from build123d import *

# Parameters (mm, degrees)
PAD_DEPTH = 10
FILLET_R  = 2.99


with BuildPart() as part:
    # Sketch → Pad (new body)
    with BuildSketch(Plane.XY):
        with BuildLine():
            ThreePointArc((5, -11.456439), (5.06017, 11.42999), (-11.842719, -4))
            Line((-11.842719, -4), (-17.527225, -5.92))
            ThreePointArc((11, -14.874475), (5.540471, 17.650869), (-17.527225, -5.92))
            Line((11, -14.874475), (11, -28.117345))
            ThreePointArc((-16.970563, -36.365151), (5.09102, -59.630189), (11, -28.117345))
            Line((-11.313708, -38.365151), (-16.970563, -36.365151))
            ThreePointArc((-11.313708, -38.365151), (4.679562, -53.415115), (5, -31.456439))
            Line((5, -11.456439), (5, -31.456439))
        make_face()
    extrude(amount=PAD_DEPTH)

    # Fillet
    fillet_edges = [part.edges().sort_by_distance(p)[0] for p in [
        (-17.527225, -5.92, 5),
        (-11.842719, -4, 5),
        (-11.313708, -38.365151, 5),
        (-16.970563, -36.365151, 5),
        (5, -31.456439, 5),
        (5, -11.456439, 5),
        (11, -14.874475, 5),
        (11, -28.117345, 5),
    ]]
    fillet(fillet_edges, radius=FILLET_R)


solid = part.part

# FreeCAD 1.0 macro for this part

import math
import FreeCAD as App
import Part
import Sketcher

V = App.Vector
Q = App.Units.Quantity


def edges_at(feature, points):
    """Names of the edges that pass closest to the given points."""
    edges = feature.Shape.Edges
    near = lambda p: min(range(len(edges)), key=lambda i: edges[i].distToShape(Part.Vertex(*p))[0])
    return sorted({f"Edge{near(p) + 1}" for p in points})

doc = App.newDocument("Part")
body = doc.addObject("PartDesign::Body", "Body")

# Sketch on XY plane
sketch1 = doc.addObject("Sketcher::SketchObject", "Sketch")
body.addObject(sketch1)
sketch1.AttachmentSupport = (doc.XY_Plane, [""])
sketch1.MapMode = "FlatFace"
sketch1.addGeometry([
    Part.ArcOfCircle(Part.Circle(V(0, 0, 0), V(0, 0, 1), 12), math.radians(-66), math.radians(199)),  # 0
    Part.LineSegment(V(5, -11, 0), V(5, -31, 0)),  # 1
    Part.ArcOfCircle(Part.Circle(V(0, -42, 0), V(0, 0, 1), 12), math.radians(161), math.radians(425)),  # 2
    Part.LineSegment(V(-11, -38, 0), V(-17, -36, 0)),  # 3
    Part.ArcOfCircle(Part.Circle(V(0, -42, 0), V(0, 0, 1), 18), math.radians(161), math.radians(412)),  # 4
    Part.LineSegment(V(11, -28, 0), V(11, -15, 0)),  # 5
    Part.ArcOfCircle(Part.Circle(V(0, 0, 0), V(0, 0, 1), 19), math.radians(-54), math.radians(199)),  # 6
    Part.LineSegment(V(-18, -6, 0), V(-12, -4, 0)),  # 7
], False)
sketch1.addConstraint([
    Sketcher.Constraint("Coincident", 0, 1, 1, 1),
    Sketcher.Constraint("Coincident", 1, 2, 2, 2),
    Sketcher.Constraint("Coincident", 2, 1, 3, 1),
    Sketcher.Constraint("Coincident", 3, 2, 4, 1),
    Sketcher.Constraint("Coincident", 4, 2, 5, 1),
    Sketcher.Constraint("Coincident", 5, 2, 6, 1),
    Sketcher.Constraint("Coincident", 6, 2, 7, 1),
    Sketcher.Constraint("Coincident", 7, 2, 0, 2),
    Sketcher.Constraint("Vertical", 1),
    Sketcher.Constraint("Vertical", 5),
    Sketcher.Constraint("Coincident", 0, 3, -1, 1),
    Sketcher.Constraint("Coincident", 6, 3, -1, 1),
    Sketcher.Constraint("Coincident", 4, 3, 2, 3),
    Sketcher.Constraint("PointOnObject", 2, 3, -2),
    Sketcher.Constraint("Equal", 3, 7),
    Sketcher.Constraint("Radius", 2, Q("12 mm")),
    Sketcher.Constraint("Radius", 4, Q("18 mm")),
    Sketcher.Constraint("Radius", 0, Q("12.5 mm")),
    Sketcher.Constraint("DistanceY", 1, 2, 1, 1, Q("20 mm")),
    Sketcher.Constraint("DistanceX", -1, 1, 0, 1, Q("5 mm")),
    Sketcher.Constraint("DistanceX", -1, 1, 4, 2, Q("11 mm")),
    Sketcher.Constraint("DistanceY", 7, 2, -1, 1, Q("4 mm")),
    Sketcher.Constraint("DistanceY", 4, 3, 2, 1, Q("4.000001 mm")),
    Sketcher.Constraint("DistanceY", 2, 1, 3, 2, Q("2 mm")),
    Sketcher.Constraint("DistanceY", 6, 2, -1, 1, Q("5.92 mm")),
])
pad1 = doc.addObject("PartDesign::Pad", "Pad")
body.addObject(pad1)
pad1.Profile = sketch1
pad1.Length = 10
doc.recompute()

fillet = doc.addObject("PartDesign::Fillet", "Fillet")
body.addObject(fillet)
fillet.Base = (pad1, edges_at(pad1, [
    (-17.527, -5.92, 5),
    (-11.843, -4, 5),
    (-11.314, -38.365, 5),
    (-16.971, -36.365, 5),
    (5, -31.456, 5),
    (5, -11.456, 5),
    (11, -14.874, 5),
    (11, -28.117, 5),
]))
fillet.Radius = 2.99

doc.recompute()
